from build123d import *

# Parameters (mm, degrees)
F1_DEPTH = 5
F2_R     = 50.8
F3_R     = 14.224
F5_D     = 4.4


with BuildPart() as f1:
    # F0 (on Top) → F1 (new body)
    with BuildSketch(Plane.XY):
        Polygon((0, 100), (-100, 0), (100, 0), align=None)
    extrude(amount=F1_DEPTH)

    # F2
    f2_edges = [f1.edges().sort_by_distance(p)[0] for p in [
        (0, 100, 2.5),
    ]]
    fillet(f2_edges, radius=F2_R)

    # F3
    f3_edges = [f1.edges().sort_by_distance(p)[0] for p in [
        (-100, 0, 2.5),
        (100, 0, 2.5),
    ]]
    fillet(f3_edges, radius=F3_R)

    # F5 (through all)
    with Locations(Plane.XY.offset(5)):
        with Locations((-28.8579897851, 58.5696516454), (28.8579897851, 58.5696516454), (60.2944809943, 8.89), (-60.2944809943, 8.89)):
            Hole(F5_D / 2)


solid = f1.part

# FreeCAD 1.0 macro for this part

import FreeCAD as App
import Part
import Sketcher
from FreeCAD import Vector
Q = App.Units.Quantity


def edges_at(feature, points):
    """Names of the edges that pass closest to the given points."""
    edges = feature.Shape.Edges
    near = lambda p: min(range(len(edges)), key=lambda i: edges[i].distToShape(Part.Vertex(*p))[0])
    return sorted({f"Edge{near(p) + 1}" for p in points})

doc = App.newDocument("Part")
body = doc.addObject("PartDesign::Body", "Body")

# Sketch on XY plane
sketch1 = doc.addObject("Sketcher::SketchObject", "Sketch")
body.addObject(sketch1)
sketch1.AttachmentSupport = (doc.XY_Plane, [""])
sketch1.MapMode = "FlatFace"
sketch1.addGeometry([
    Part.LineSegment(Vector(0, 100, 0), Vector(-100, 0, 0)),
    Part.LineSegment(Vector(-100, 0, 0), Vector(100, 0, 0)),
    Part.LineSegment(Vector(100, 0, 0), Vector(0, 100, 0)),
], False)
sketch1.addConstraint([
    Sketcher.Constraint("Coincident", 0, 2, 1, 1),
    Sketcher.Constraint("Coincident", 1, 2, 2, 1),
    Sketcher.Constraint("Coincident", 2, 2, 0, 1),
    Sketcher.Constraint("Horizontal", 1),
    Sketcher.Constraint("Symmetric", 0, 2, 1, 2, -1, 1),
    Sketcher.Constraint("PointOnObject", 2, 2, -2),
    Sketcher.Constraint("Perpendicular", 0, 2),
    Sketcher.Constraint("DistanceX", 1, 1, 1, 2, Q("200 mm")),
])
pad1 = doc.addObject("PartDesign::Pad", "Pad")
body.addObject(pad1)
pad1.Profile = sketch1
pad1.Length = 5
doc.recompute()

fillet = doc.addObject("PartDesign::Fillet", "Fillet")
body.addObject(fillet)
fillet.Base = (pad1, edges_at(pad1, [(0, 100, 2.5)]))
fillet.Radius = 50.8
doc.recompute()

fillet2 = doc.addObject("PartDesign::Fillet", "Fillet001")
body.addObject(fillet2)
fillet2.Base = (fillet, edges_at(fillet, [(-100, 0, 2.5), (100, 0, 2.5)]))
fillet2.Radius = 14.224

# Sketch on XY plane
sketch2 = doc.addObject("Sketcher::SketchObject", "Sketch001")
body.addObject(sketch2)
sketch2.AttachmentSupport = (doc.XY_Plane, [""])
sketch2.MapMode = "FlatFace"
sketch2.AttachmentOffset = App.Placement(Vector(0, 0, 5), App.Rotation())
sketch2.addGeometry([
    Part.Circle(Vector(-28.9, 58.6, 0), Vector(0, 0, 1), 2.2),
    Part.Circle(Vector(28.9, 58.6, 0), Vector(0, 0, 1), 2.2),
    Part.Circle(Vector(60.3, 8.9, 0), Vector(0, 0, 1), 2.2),
    Part.Circle(Vector(-60.3, 8.9, 0), Vector(0, 0, 1), 2.2),
], False)
sketch2.addConstraint([
    Sketcher.Constraint("Equal", 0, 1),
    Sketcher.Constraint("Equal", 1, 2),
    Sketcher.Constraint("Equal", 2, 3),
    Sketcher.Constraint("Symmetric", 0, 3, 1, 3, -2),
    Sketcher.Constraint("Symmetric", 2, 3, 3, 3, -2),
    Sketcher.Constraint("Diameter", 0, Q("4.4 mm")),
    Sketcher.Constraint("DistanceY", -1, 1, 2, 3, Q("8.89 mm")),
    Sketcher.Constraint("DistanceX", 0, 3, -1, 1, Q("28.85799 mm")),
    Sketcher.Constraint("DistanceY", -1, 1, 0, 3, Q("58.569652 mm")),
    Sketcher.Constraint("DistanceX", -1, 1, 2, 3, Q("60.294481 mm")),
])
doc.recompute()
hole = doc.addObject("PartDesign::Hole", "Hole")
body.addObject(hole)
hole.Profile = sketch2
hole.ThreadType = "None"
hole.Diameter = 4.4
hole.DepthType = "ThroughAll"

doc.recompute()
